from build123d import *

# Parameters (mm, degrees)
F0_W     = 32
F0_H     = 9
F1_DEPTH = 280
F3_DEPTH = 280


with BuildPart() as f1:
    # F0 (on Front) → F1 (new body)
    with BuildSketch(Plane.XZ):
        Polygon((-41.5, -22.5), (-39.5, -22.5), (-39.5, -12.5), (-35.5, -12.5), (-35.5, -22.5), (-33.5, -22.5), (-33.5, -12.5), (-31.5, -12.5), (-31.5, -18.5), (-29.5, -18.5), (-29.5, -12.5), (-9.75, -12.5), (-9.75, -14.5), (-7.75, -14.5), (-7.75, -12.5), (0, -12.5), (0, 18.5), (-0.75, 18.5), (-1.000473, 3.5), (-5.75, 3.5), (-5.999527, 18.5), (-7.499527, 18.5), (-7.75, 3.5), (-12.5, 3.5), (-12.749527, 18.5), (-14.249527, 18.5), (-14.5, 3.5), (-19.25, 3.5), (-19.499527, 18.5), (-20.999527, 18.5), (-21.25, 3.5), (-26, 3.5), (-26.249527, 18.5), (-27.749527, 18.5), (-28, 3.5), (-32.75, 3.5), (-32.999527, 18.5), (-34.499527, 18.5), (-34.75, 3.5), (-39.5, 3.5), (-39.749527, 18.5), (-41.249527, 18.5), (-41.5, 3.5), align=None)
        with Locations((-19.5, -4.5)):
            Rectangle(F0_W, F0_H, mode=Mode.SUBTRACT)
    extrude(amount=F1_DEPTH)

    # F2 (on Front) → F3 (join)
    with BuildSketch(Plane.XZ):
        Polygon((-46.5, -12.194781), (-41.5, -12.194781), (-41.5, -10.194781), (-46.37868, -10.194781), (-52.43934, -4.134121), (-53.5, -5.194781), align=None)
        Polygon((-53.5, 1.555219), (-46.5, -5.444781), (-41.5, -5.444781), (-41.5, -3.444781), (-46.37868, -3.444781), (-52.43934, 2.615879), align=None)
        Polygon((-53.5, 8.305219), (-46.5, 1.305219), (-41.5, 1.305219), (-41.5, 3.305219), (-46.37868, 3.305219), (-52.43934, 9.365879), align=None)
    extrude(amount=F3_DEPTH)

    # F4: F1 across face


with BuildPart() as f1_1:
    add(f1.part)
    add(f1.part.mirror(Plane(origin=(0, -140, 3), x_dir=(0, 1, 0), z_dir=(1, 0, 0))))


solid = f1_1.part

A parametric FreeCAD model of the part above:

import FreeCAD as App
import Part
import Sketcher
from FreeCAD import Vector
Q = App.Units.Quantity

doc = App.newDocument("Part")
body = doc.addObject("PartDesign::Body", "Body")

sketch1 = body.newObject("Sketcher::SketchObject", "Sketch")
sketch1.AttachmentSupport = (doc.getObject("XZ_Plane"), [""])
sketch1.MapMode = "FlatFace"
sketch1.addGeometry(Part.LineSegment(Vector(-41.5, -22.5, 0), Vector(-39.5, -22.5, 0)), False)
sketch1.addGeometry(Part.LineSegment(Vector(-39.5, -22.5, 0), Vector(-39.5, -12.5, 0)), False)
sketch1.addGeometry(Part.LineSegment(Vector(-39.5, -12.5, 0), Vector(-35.5, -12.5, 0)), False)
sketch1.addGeometry(Part.LineSegment(Vector(-35.5, -12.5, 0), Vector(-35.5, -22.5, 0)), False)
sketch1.addGeometry(Part.LineSegment(Vector(-35.5, -22.5, 0), Vector(-33.5, -22.5, 0)), False)
sketch1.addGeometry(Part.LineSegment(Vector(-33.5, -22.5, 0), Vector(-33.5, -12.5, 0)), False)
sketch1.addGeometry(Part.LineSegment(Vector(-33.5, -12.5, 0), Vector(-31.5, -12.5, 0)), False)
sketch1.addGeometry(Part.LineSegment(Vector(-31.5, -12.5, 0), Vector(-31.5, -18.5, 0)), False)
sketch1.addGeometry(Part.LineSegment(Vector(-31.5, -18.5, 0), Vector(-29.5, -18.5, 0)), False)
sketch1.addGeometry(Part.LineSegment(Vector(-29.5, -18.5, 0), Vector(-29.5, -12.5, 0)), False)
sketch1.addGeometry(Part.LineSegment(Vector(-29.5, -12.5, 0), Vector(-9.75, -12.5, 0)), False)
sketch1.addGeometry(Part.LineSegment(Vector(-9.75, -12.5, 0), Vector(-9.75, -14.5, 0)), False)
sketch1.addGeometry(Part.LineSegment(Vector(-9.75, -14.5, 0), Vector(-7.75, -14.5, 0)), False)
sketch1.addGeometry(Part.LineSegment(Vector(-7.75, -14.5, 0), Vector(-7.75, -12.5, 0)), False)
sketch1.addGeometry(Part.LineSegment(Vector(-7.75, -12.5, 0), Vector(0, -12.5, 0)), False)
sketch1.addGeometry(Part.LineSegment(Vector(0, -12.5, 0), Vector(0, 18.5, 0)), False)
sketch1.addGeometry(Part.LineSegment(Vector(0, 18.5, 0), Vector(-0.75, 18.5, 0)), False)
sketch1.addGeometry(Part.LineSegment(Vector(-0.75, 18.5, 0), Vector(-1.000473, 3.5, 0)), False)
sketch1.addGeometry(Part.LineSegment(Vector(-1.000473, 3.5, 0), Vector(-5.75, 3.5, 0)), False)
sketch1.addGeometry(Part.LineSegment(Vector(-5.75, 3.5, 0), Vector(-5.999527, 18.5, 0)), False)
sketch1.addGeometry(Part.LineSegment(Vector(-5.999527, 18.5, 0), Vector(-7.499527, 18.5, 0)), False)
sketch1.addGeometry(Part.LineSegment(Vector(-7.499527, 18.5, 0), Vector(-7.75, 3.5, 0)), False)
sketch1.addGeometry(Part.LineSegment(Vector(-7.75, 3.5, 0), Vector(-12.5, 3.5, 0)), False)
sketch1.addGeometry(Part.LineSegment(Vector(-12.5, 3.5, 0), Vector(-12.749527, 18.5, 0)), False)
sketch1.addGeometry(Part.LineSegment(Vector(-12.749527, 18.5, 0), Vector(-14.249527, 18.5, 0)), False)
sketch1.addGeometry(Part.LineSegment(Vector(-14.249527, 18.5, 0), Vector(-14.5, 3.5, 0)), False)
sketch1.addGeometry(Part.LineSegment(Vector(-14.5, 3.5, 0), Vector(-19.25, 3.5, 0)), False)
sketch1.addGeometry(Part.LineSegment(Vector(-19.25, 3.5, 0), Vector(-19.499527, 18.5, 0)), False)
sketch1.addGeometry(Part.LineSegment(Vector(-19.499527, 18.5, 0), Vector(-20.999527, 18.5, 0)), False)
sketch1.addGeometry(Part.LineSegment(Vector(-20.999527, 18.5, 0), Vector(-21.25, 3.5, 0)), False)
sketch1.addGeometry(Part.LineSegment(Vector(-21.25, 3.5, 0), Vector(-26, 3.5, 0)), False)
sketch1.addGeometry(Part.LineSegment(Vector(-26, 3.5, 0), Vector(-26.249527, 18.5, 0)), False)
sketch1.addGeometry(Part.LineSegment(Vector(-26.249527, 18.5, 0), Vector(-27.749527, 18.5, 0)), False)
sketch1.addGeometry(Part.LineSegment(Vector(-27.749527, 18.5, 0), Vector(-28, 3.5, 0)), False)
sketch1.addGeometry(Part.LineSegment(Vector(-28, 3.5, 0), Vector(-32.75, 3.5, 0)), False)
sketch1.addGeometry(Part.LineSegment(Vector(-32.75, 3.5, 0), Vector(-32.999527, 18.5, 0)), False)
sketch1.addGeometry(Part.LineSegment(Vector(-32.999527, 18.5, 0), Vector(-34.499527, 18.5, 0)), False)
sketch1.addGeometry(Part.LineSegment(Vector(-34.499527, 18.5, 0), Vector(-34.75, 3.5, 0)), False)
sketch1.addGeometry(Part.LineSegment(Vector(-34.75, 3.5, 0), Vector(-39.5, 3.5, 0)), False)
sketch1.addGeometry(Part.LineSegment(Vector(-39.5, 3.5, 0), Vector(-39.749527, 18.5, 0)), False)
sketch1.addGeometry(Part.LineSegment(Vector(-39.749527, 18.5, 0), Vector(-41.249527, 18.5, 0)), False)
sketch1.addGeometry(Part.LineSegment(Vector(-41.249527, 18.5, 0), Vector(-41.5, 3.5, 0)), False)
sketch1.addGeometry(Part.LineSegment(Vector(-41.5, 3.5, 0), Vector(-41.5, -22.5, 0)), False)
sketch1.addGeometry(Part.LineSegment(Vector(-3.5, -9, 0), Vector(-35.5, -9, 0)), False)
sketch1.addGeometry(Part.LineSegment(Vector(-35.5, -9, 0), Vector(-35.5, 0, 0)), False)
sketch1.addGeometry(Part.LineSegment(Vector(-35.5, 0, 0), Vector(-3.5, 0, 0)), False)
sketch1.addGeometry(Part.LineSegment(Vector(-3.5, 0, 0), Vector(-3.5, -9, 0)), False)
sketch1.addConstraint(Sketcher.Constraint("Coincident", 0, 2, 1, 1))
sketch1.addConstraint(Sketcher.Constraint("Coincident", 1, 2, 2, 1))
sketch1.addConstraint(Sketcher.Constraint("Coincident", 2, 2, 3, 1))
sketch1.addConstraint(Sketcher.Constraint("Coincident", 3, 2, 4, 1))
sketch1.addConstraint(Sketcher.Constraint("Coincident", 4, 2, 5, 1))
sketch1.addConstraint(Sketcher.Constraint("Coincident", 5, 2, 6, 1))
sketch1.addConstraint(Sketcher.Constraint("Coincident", 6, 2, 7, 1))
sketch1.addConstraint(Sketcher.Constraint("Coincident", 7, 2, 8, 1))
sketch1.addConstraint(Sketcher.Constraint("Coincident", 8, 2, 9, 1))
sketch1.addConstraint(Sketcher.Constraint("Coincident", 9, 2, 10, 1))
sketch1.addConstraint(Sketcher.Constraint("Coincident", 10, 2, 11, 1))
sketch1.addConstraint(Sketcher.Constraint("Coincident", 11, 2, 12, 1))
sketch1.addConstraint(Sketcher.Constraint("Coincident", 12, 2, 13, 1))
sketch1.addConstraint(Sketcher.Constraint("Coincident", 13, 2, 14, 1))
sketch1.addConstraint(Sketcher.Constraint("Coincident", 14, 2, 15, 1))
sketch1.addConstraint(Sketcher.Constraint("Coincident", 15, 2, 16, 1))
sketch1.addConstraint(Sketcher.Constraint("Coincident", 16, 2, 17, 1))
sketch1.addConstraint(Sketcher.Constraint("Coincident", 17, 2, 18, 1))
sketch1.addConstraint(Sketcher.Constraint("Coincident", 18, 2, 19, 1))
sketch1.addConstraint(Sketcher.Constraint("Coincident", 19, 2, 20, 1))
sketch1.addConstraint(Sketcher.Constraint("Coincident", 20, 2, 21, 1))
sketch1.addConstraint(Sketcher.Constraint("Coincident", 21, 2, 22, 1))
sketch1.addConstraint(Sketcher.Constraint("Coincident", 22, 2, 23, 1))
sketch1.addConstraint(Sketcher.Constraint("Coincident", 23, 2, 24, 1))
sketch1.addConstraint(Sketcher.Constraint("Coincident", 24, 2, 25, 1))
sketch1.addConstraint(Sketcher.Constraint("Coincident", 25, 2, 26, 1))
sketch1.addConstraint(Sketcher.Constraint("Coincident", 26, 2, 27, 1))
sketch1.addConstraint(Sketcher.Constraint("Coincident", 27, 2, 28, 1))
sketch1.addConstraint(Sketcher.Constraint("Coincident", 28, 2, 29, 1))
sketch1.addConstraint(Sketcher.Constraint("Coincident", 29, 2, 30, 1))
sketch1.addConstraint(Sketcher.Constraint("Coincident", 30, 2, 31, 1))
sketch1.addConstraint(Sketcher.Constraint("Coincident", 31, 2, 32, 1))
sketch1.addConstraint(Sketcher.Constraint("Coincident", 32, 2, 33, 1))
sketch1.addConstraint(Sketcher.Constraint("Coincident", 33, 2, 34, 1))
sketch1.addConstraint(Sketcher.Constraint("Coincident", 34, 2, 35, 1))
sketch1.addConstraint(Sketcher.Constraint("Coincident", 35, 2, 36, 1))
sketch1.addConstraint(Sketcher.Constraint("Coincident", 36, 2, 37, 1))
sketch1.addConstraint(Sketcher.Constraint("Coincident", 37, 2, 38, 1))
sketch1.addConstraint(Sketcher.Constraint("Coincident", 38, 2, 39, 1))
sketch1.addConstraint(Sketcher.Constraint("Coincident", 39, 2, 40, 1))
sketch1.addConstraint(Sketcher.Constraint("Coincident", 40, 2, 41, 1))
sketch1.addConstraint(Sketcher.Constraint("Coincident", 41, 2, 42, 1))
sketch1.addConstraint(Sketcher.Constraint("Coincident", 42, 2, 0, 1))
sketch1.addConstraint(Sketcher.Constraint("Coincident", 43, 2, 44, 1))
sketch1.addConstraint(Sketcher.Constraint("Coincident", 44, 2, 45, 1))
sketch1.addConstraint(Sketcher.Constraint("Coincident", 45, 2, 46, 1))
sketch1.addConstraint(Sketcher.Constraint("Coincident", 46, 2, 43, 1))
sketch1.addConstraint(Sketcher.Constraint("Horizontal", 0))
sketch1.addConstraint(Sketcher.Constraint("Vertical", 1))
sketch1.addConstraint(Sketcher.Constraint("Horizontal", 2))
sketch1.addConstraint(Sketcher.Constraint("Vertical", 3))
sketch1.addConstraint(Sketcher.Constraint("Horizontal", 4))
sketch1.addConstraint(Sketcher.Constraint("Vertical", 5))
sketch1.addConstraint(Sketcher.Constraint("Horizontal", 6))
sketch1.addConstraint(Sketcher.Constraint("Vertical", 7))
sketch1.addConstraint(Sketcher.Constraint("Horizontal", 8))
sketch1.addConstraint(Sketcher.Constraint("Vertical", 9))
sketch1.addConstraint(Sketcher.Constraint("Horizontal", 10))
sketch1.addConstraint(Sketcher.Constraint("Vertical", 11))
sketch1.addConstraint(Sketcher.Constraint("Horizontal", 12))
sketch1.addConstraint(Sketcher.Constraint("Vertical", 13))
sketch1.addConstraint(Sketcher.Constraint("Horizontal", 14))
sketch1.addConstraint(Sketcher.Constraint("Vertical", 15))
sketch1.addConstraint(Sketcher.Constraint("Horizontal", 16))
sketch1.addConstraint(Sketcher.Constraint("Horizontal", 18))
sketch1.addConstraint(Sketcher.Constraint("Horizontal", 20))
sketch1.addConstraint(Sketcher.Constraint("Horizontal", 22))
sketch1.addConstraint(Sketcher.Constraint("Horizontal", 24))
sketch1.addConstraint(Sketcher.Constraint("Horizontal", 26))
sketch1.addConstraint(Sketcher.Constraint("Horizontal", 28))
sketch1.addConstraint(Sketcher.Constraint("Horizontal", 30))
sketch1.addConstraint(Sketcher.Constraint("Horizontal", 32))
sketch1.addConstraint(Sketcher.Constraint("Horizontal", 34))
sketch1.addConstraint(Sketcher.Constraint("Horizontal", 36))
sketch1.addConstraint(Sketcher.Constraint("Horizontal", 38))
sketch1.addConstraint(Sketcher.Constraint("Horizontal", 40))
sketch1.addConstraint(Sketcher.Constraint("Vertical", 42))
sketch1.addConstraint(Sketcher.Constraint("Horizontal", 43))
sketch1.addConstraint(Sketcher.Constraint("Vertical", 44))
sketch1.addConstraint(Sketcher.Constraint("Horizontal", 45))
sketch1.addConstraint(Sketcher.Constraint("Vertical", 46))
sketch1.addConstraint(Sketcher.Constraint("PointOnObject", 14, 2, -2))
sketch1.addConstraint(Sketcher.Constraint("PointOnObject", 44, 2, -1))
sketch1.addConstraint(Sketcher.Constraint("Parallel", 17, 21))
sketch1.addConstraint(Sketcher.Constraint("Parallel", 19, 23))
sketch1.addConstraint(Sketcher.Constraint("Parallel", 21, 25))
sketch1.addConstraint(Sketcher.Constraint("Parallel", 23, 27))
sketch1.addConstraint(Sketcher.Constraint("Parallel", 25, 29))
sketch1.addConstraint(Sketcher.Constraint("Parallel", 27, 31))
sketch1.addConstraint(Sketcher.Constraint("Parallel", 29, 33))
sketch1.addConstraint(Sketcher.Constraint("Parallel", 31, 35))
sketch1.addConstraint(Sketcher.Constraint("Parallel", 33, 37))
sketch1.addConstraint(Sketcher.Constraint("Parallel", 35, 39))
sketch1.addConstraint(Sketcher.Constraint("Parallel", 37, 41))
sketch1.addConstraint(Sketcher.Constraint("Horizontal", 0, 2, 3, 2))
sketch1.addConstraint(Sketcher.Constraint("Horizontal", 2, 2, 5, 2))
sketch1.addConstraint(Sketcher.Constraint("Horizontal", 6, 2, 9, 2))
sketch1.addConstraint(Sketcher.Constraint("Horizontal", 10, 2, 13, 2))
sketch1.addConstraint(Sketcher.Constraint("Horizontal", 16, 2, 19, 2))
sketch1.addConstraint(Sketcher.Constraint("Horizontal", 18, 2, 21, 2))
sketch1.addConstraint(Sketcher.Constraint("Horizontal", 20, 2, 23, 2))
sketch1.addConstraint(Sketcher.Constraint("Horizontal", 22, 2, 25, 2))
sketch1.addConstraint(Sketcher.Constraint("Horizontal", 24, 2, 27, 2))
sketch1.addConstraint(Sketcher.Constraint("Horizontal", 26, 2, 29, 2))
sketch1.addConstraint(Sketcher.Constraint("Horizontal", 28, 2, 31, 2))
sketch1.addConstraint(Sketcher.Constraint("Horizontal", 30, 2, 33, 2))
sketch1.addConstraint(Sketcher.Constraint("Horizontal", 32, 2, 35, 2))
sketch1.addConstraint(Sketcher.Constraint("Horizontal", 34, 2, 37, 2))
sketch1.addConstraint(Sketcher.Constraint("Horizontal", 36, 2, 39, 2))
sketch1.addConstraint(Sketcher.Constraint("Horizontal", 38, 2, 41, 2))
sketch1.addConstraint(Sketcher.Constraint("Vertical", 13, 2, 21, 2))
sketch1.addConstraint(Sketcher.Constraint("Vertical", 1, 2, 38, 2))
sketch1.addConstraint(Sketcher.Constraint("Vertical", 3, 2, 43, 2))
sketch1.addConstraint(Sketcher.Constraint("Equal", 0, 4))
sketch1.addConstraint(Sketcher.Constraint("Equal", 4, 6))
sketch1.addConstraint(Sketcher.Constraint("Equal", 6, 8))
sketch1.addConstraint(Sketcher.Constraint("Equal", 8, 12))
sketch1.addConstraint(Sketcher.Constraint("Equal", 20, 24))
sketch1.addConstraint(Sketcher.Constraint("Equal", 22, 26))
sketch1.addConstraint(Sketcher.Constraint("Equal", 24, 28))
sketch1.addConstraint(Sketcher.Constraint("Equal", 26, 30))
sketch1.addConstraint(Sketcher.Constraint("Equal", 28, 32))
sketch1.addConstraint(Sketcher.Constraint("Equal", 30, 34))
sketch1.addConstraint(Sketcher.Constraint("Equal", 32, 36))
sketch1.addConstraint(Sketcher.Constraint("Equal", 34, 38))
sketch1.addConstraint(Sketcher.Constraint("Equal", 36, 40))
sketch1.addConstraint(Sketcher.Constraint("Equal", 12, 11))
sketch1.addConstraint(Sketcher.Constraint("DistanceX", 0, 1, 0, 2, 2.0))
sketch1.addConstraint(Sketcher.Constraint("DistanceX", 2, 1, 2, 2, 4.0))
sketch1.addConstraint(Sketcher.Constraint("DistanceX", 43, 2, 43, 1, 32.0))
sketch1.addConstraint(Sketcher.Constraint("DistanceY", 1, 1, 1, 2, 10.0))
sketch1.addConstraint(Sketcher.Constraint("DistanceY", 7, 2, 7, 1, 6.0))
sketch1.addConstraint(Sketcher.Constraint("DistanceY", 15, 1, 15, 2, 31.0))
sketch1.addConstraint(Sketcher.Constraint("DistanceY", 42, 2, 42, 1, 26.0))
sketch1.addConstraint(Sketcher.Constraint("DistanceY", 44, 1, 44, 2, 9.0))
sketch1.addConstraint(Sketcher.Constraint("DistanceX", 20, 2, 20, 1, 1.5))
sketch1.addConstraint(Sketcher.Constraint("DistanceX", 30, 2, -1, 1, 26.0))
sketch1.addConstraint(Sketcher.Constraint("DistanceX", 13, 2, 16, 2, 7.0))
sketch1.addConstraint(Sketcher.Constraint("DistanceX", 27, 2, 20, 2, 12.0))
sketch1.addConstraint(Sketcher.Constraint("DistanceY", 0, 2, -1, 1, 22.5))
sketch1.addConstraint(Sketcher.Constraint("Distance", 17, 15.002091))
pad1 = body.newObject("PartDesign::Pad", "Pad")
pad1.Profile = sketch1
pad1.Length = 280

sketch2 = body.newObject("Sketcher::SketchObject", "Sketch001")
sketch2.AttachmentSupport = (doc.getObject("XZ_Plane"), [""])
sketch2.MapMode = "FlatFace"
sketch2.addGeometry(Part.LineSegment(Vector(-46.5, -12.194781, 0), Vector(-41.5, -12.194781, 0)), False)
sketch2.addGeometry(Part.LineSegment(Vector(-41.5, -12.194781, 0), Vector(-41.5, -10.194781, 0)), False)
sketch2.addGeometry(Part.LineSegment(Vector(-41.5, -10.194781, 0), Vector(-46.37868, -10.194781, 0)), False)
sketch2.addGeometry(Part.LineSegment(Vector(-46.37868, -10.194781, 0), Vector(-52.43934, -4.134121, 0)), False)
sketch2.addGeometry(Part.LineSegment(Vector(-52.43934, -4.134121, 0), Vector(-53.5, -5.194781, 0)), False)
sketch2.addGeometry(Part.LineSegment(Vector(-53.5, -5.194781, 0), Vector(-46.5, -12.194781, 0)), False)
sketch2.addGeometry(Part.LineSegment(Vector(-53.5, 1.555219, 0), Vector(-46.5, -5.444781, 0)), False)
sketch2.addGeometry(Part.LineSegment(Vector(-46.5, -5.444781, 0), Vector(-41.5, -5.444781, 0)), False)
sketch2.addGeometry(Part.LineSegment(Vector(-41.5, -5.444781, 0), Vector(-41.5, -3.444781, 0)), False)
sketch2.addGeometry(Part.LineSegment(Vector(-41.5, -3.444781, 0), Vector(-46.37868, -3.444781, 0)), False)
sketch2.addGeometry(Part.LineSegment(Vector(-46.37868, -3.444781, 0), Vector(-52.43934, 2.615879, 0)), False)
sketch2.addGeometry(Part.LineSegment(Vector(-52.43934, 2.615879, 0), Vector(-53.5, 1.555219, 0)), False)
sketch2.addGeometry(Part.LineSegment(Vector(-53.5, 8.305219, 0), Vector(-46.5, 1.305219, 0)), False)
sketch2.addGeometry(Part.LineSegment(Vector(-46.5, 1.305219, 0), Vector(-41.5, 1.305219, 0)), False)
sketch2.addGeometry(Part.LineSegment(Vector(-41.5, 1.305219, 0), Vector(-41.5, 3.305219, 0)), False)
sketch2.addGeometry(Part.LineSegment(Vector(-41.5, 3.305219, 0), Vector(-46.37868, 3.305219, 0)), False)
sketch2.addGeometry(Part.LineSegment(Vector(-46.37868, 3.305219, 0), Vector(-52.43934, 9.365879, 0)), False)
sketch2.addGeometry(Part.LineSegment(Vector(-52.43934, 9.365879, 0), Vector(-53.5, 8.305219, 0)), False)
sketch2.addConstraint(Sketcher.Constraint("Coincident", 0, 2, 1, 1))
sketch2.addConstraint(Sketcher.Constraint("Coincident", 1, 2, 2, 1))
sketch2.addConstraint(Sketcher.Constraint("Coincident", 2, 2, 3, 1))
sketch2.addConstraint(Sketcher.Constraint("Coincident", 3, 2, 4, 1))
sketch2.addConstraint(Sketcher.Constraint("Coincident", 4, 2, 5, 1))
sketch2.addConstraint(Sketcher.Constraint("Coincident", 5, 2, 0, 1))
sketch2.addConstraint(Sketcher.Constraint("Coincident", 6, 2, 7, 1))
sketch2.addConstraint(Sketcher.Constraint("Coincident", 7, 2, 8, 1))
sketch2.addConstraint(Sketcher.Constraint("Coincident", 8, 2, 9, 1))
sketch2.addConstraint(Sketcher.Constraint("Coincident", 9, 2, 10, 1))
sketch2.addConstraint(Sketcher.Constraint("Coincident", 10, 2, 11, 1))
sketch2.addConstraint(Sketcher.Constraint("Coincident", 11, 2, 6, 1))
sketch2.addConstraint(Sketcher.Constraint("Coincident", 12, 2, 13, 1))
sketch2.addConstraint(Sketcher.Constraint("Coincident", 13, 2, 14, 1))
sketch2.addConstraint(Sketcher.Constraint("Coincident", 14, 2, 15, 1))
sketch2.addConstraint(Sketcher.Constraint("Coincident", 15, 2, 16, 1))
sketch2.addConstraint(Sketcher.Constraint("Coincident", 16, 2, 17, 1))
sketch2.addConstraint(Sketcher.Constraint("Coincident", 17, 2, 12, 1))
sketch2.addConstraint(Sketcher.Constraint("Horizontal", 0))
sketch2.addConstraint(Sketcher.Constraint("Vertical", 1))
sketch2.addConstraint(Sketcher.Constraint("Horizontal", 2))
sketch2.addConstraint(Sketcher.Constraint("Horizontal", 7))
sketch2.addConstraint(Sketcher.Constraint("Vertical", 8))
sketch2.addConstraint(Sketcher.Constraint("Horizontal", 9))
sketch2.addConstraint(Sketcher.Constraint("Horizontal", 13))
sketch2.addConstraint(Sketcher.Constraint("Vertical", 14))
sketch2.addConstraint(Sketcher.Constraint("Horizontal", 15))
sketch2.addConstraint(Sketcher.Constraint("Perpendicular", 3, 4))
sketch2.addConstraint(Sketcher.Constraint("Perpendicular", 4, 5))
sketch2.addConstraint(Sketcher.Constraint("Parallel", 5, 6))
sketch2.addConstraint(Sketcher.Constraint("Parallel", 6, 10))
sketch2.addConstraint(Sketcher.Constraint("Perpendicular", 10, 11))
sketch2.addConstraint(Sketcher.Constraint("Perpendicular", 11, 12))
sketch2.addConstraint(Sketcher.Constraint("Parallel", 12, 16))
sketch2.addConstraint(Sketcher.Constraint("Perpendicular", 16, 17))
sketch2.addConstraint(Sketcher.Constraint("Vertical", 5, 2, 6, 2))
sketch2.addConstraint(Sketcher.Constraint("Vertical", 1, 2, 7, 2))
sketch2.addConstraint(Sketcher.Constraint("Vertical", 2, 2, 9, 2))
sketch2.addConstraint(Sketcher.Constraint("Vertical", 3, 2, 10, 2))
sketch2.addConstraint(Sketcher.Constraint("Vertical", 4, 2, 11, 2))
sketch2.addConstraint(Sketcher.Constraint("Vertical", 6, 2, 12, 2))
sketch2.addConstraint(Sketcher.Constraint("Vertical", 8, 2, 13, 2))
sketch2.addConstraint(Sketcher.Constraint("Vertical", 9, 2, 15, 2))
sketch2.addConstraint(Sketcher.Constraint("Vertical", 10, 2, 16, 2))
sketch2.addConstraint(Sketcher.Constraint("Vertical", 11, 2, 17, 2))
sketch2.addConstraint(Sketcher.Constraint("DistanceX", 0, 1, 0, 2, 5.0))
sketch2.addConstraint(Sketcher.Constraint("DistanceY", 1, 1, 1, 2, 2.0))
sketch2.addConstraint(Sketcher.Constraint("Angle", 3, Q("135 deg")))
sketch2.addConstraint(Sketcher.Constraint("DistanceY", 2, 2, 4, 2, 5.0))
sketch2.addConstraint(Sketcher.Constraint("Distance", 4, 1.5))
sketch2.addConstraint(Sketcher.Constraint("DistanceX", 0, 2, -1, 1, 41.5))
sketch2.addConstraint(Sketcher.Constraint("DistanceY", 2, 2, 6, 2, 4.75))
sketch2.addConstraint(Sketcher.Constraint("DistanceY", 9, 2, 12, 2, 4.75))
sketch2.addConstraint(Sketcher.Constraint("DistanceY", 0, 2, -1, 1, 12.194781))
pad2 = body.newObject("PartDesign::Pad", "Pad001")
pad2.Profile = sketch2
pad2.Length = 280
body2 = doc.addObject("PartDesign::Body", "Body001")
doc.recompute()

body2.BaseFeature = body
doc.recompute()

mirroring = doc.addObject("Part::Mirroring", "Mirroring")
mirroring.Source = body
mirroring.Base = Vector(0, -140, 3)
mirroring.Normal = Vector(1, 0, 0)
body3 = doc.addObject("PartDesign::Body", "Body002")
body3.BaseFeature = mirroring
boolean = body2.newObject("PartDesign::Boolean", "Boolean")
boolean.Type = "Fuse"
boolean.addObjects([body3])
doc.recompute()
mirroring.Visibility = False

doc.recompute()
